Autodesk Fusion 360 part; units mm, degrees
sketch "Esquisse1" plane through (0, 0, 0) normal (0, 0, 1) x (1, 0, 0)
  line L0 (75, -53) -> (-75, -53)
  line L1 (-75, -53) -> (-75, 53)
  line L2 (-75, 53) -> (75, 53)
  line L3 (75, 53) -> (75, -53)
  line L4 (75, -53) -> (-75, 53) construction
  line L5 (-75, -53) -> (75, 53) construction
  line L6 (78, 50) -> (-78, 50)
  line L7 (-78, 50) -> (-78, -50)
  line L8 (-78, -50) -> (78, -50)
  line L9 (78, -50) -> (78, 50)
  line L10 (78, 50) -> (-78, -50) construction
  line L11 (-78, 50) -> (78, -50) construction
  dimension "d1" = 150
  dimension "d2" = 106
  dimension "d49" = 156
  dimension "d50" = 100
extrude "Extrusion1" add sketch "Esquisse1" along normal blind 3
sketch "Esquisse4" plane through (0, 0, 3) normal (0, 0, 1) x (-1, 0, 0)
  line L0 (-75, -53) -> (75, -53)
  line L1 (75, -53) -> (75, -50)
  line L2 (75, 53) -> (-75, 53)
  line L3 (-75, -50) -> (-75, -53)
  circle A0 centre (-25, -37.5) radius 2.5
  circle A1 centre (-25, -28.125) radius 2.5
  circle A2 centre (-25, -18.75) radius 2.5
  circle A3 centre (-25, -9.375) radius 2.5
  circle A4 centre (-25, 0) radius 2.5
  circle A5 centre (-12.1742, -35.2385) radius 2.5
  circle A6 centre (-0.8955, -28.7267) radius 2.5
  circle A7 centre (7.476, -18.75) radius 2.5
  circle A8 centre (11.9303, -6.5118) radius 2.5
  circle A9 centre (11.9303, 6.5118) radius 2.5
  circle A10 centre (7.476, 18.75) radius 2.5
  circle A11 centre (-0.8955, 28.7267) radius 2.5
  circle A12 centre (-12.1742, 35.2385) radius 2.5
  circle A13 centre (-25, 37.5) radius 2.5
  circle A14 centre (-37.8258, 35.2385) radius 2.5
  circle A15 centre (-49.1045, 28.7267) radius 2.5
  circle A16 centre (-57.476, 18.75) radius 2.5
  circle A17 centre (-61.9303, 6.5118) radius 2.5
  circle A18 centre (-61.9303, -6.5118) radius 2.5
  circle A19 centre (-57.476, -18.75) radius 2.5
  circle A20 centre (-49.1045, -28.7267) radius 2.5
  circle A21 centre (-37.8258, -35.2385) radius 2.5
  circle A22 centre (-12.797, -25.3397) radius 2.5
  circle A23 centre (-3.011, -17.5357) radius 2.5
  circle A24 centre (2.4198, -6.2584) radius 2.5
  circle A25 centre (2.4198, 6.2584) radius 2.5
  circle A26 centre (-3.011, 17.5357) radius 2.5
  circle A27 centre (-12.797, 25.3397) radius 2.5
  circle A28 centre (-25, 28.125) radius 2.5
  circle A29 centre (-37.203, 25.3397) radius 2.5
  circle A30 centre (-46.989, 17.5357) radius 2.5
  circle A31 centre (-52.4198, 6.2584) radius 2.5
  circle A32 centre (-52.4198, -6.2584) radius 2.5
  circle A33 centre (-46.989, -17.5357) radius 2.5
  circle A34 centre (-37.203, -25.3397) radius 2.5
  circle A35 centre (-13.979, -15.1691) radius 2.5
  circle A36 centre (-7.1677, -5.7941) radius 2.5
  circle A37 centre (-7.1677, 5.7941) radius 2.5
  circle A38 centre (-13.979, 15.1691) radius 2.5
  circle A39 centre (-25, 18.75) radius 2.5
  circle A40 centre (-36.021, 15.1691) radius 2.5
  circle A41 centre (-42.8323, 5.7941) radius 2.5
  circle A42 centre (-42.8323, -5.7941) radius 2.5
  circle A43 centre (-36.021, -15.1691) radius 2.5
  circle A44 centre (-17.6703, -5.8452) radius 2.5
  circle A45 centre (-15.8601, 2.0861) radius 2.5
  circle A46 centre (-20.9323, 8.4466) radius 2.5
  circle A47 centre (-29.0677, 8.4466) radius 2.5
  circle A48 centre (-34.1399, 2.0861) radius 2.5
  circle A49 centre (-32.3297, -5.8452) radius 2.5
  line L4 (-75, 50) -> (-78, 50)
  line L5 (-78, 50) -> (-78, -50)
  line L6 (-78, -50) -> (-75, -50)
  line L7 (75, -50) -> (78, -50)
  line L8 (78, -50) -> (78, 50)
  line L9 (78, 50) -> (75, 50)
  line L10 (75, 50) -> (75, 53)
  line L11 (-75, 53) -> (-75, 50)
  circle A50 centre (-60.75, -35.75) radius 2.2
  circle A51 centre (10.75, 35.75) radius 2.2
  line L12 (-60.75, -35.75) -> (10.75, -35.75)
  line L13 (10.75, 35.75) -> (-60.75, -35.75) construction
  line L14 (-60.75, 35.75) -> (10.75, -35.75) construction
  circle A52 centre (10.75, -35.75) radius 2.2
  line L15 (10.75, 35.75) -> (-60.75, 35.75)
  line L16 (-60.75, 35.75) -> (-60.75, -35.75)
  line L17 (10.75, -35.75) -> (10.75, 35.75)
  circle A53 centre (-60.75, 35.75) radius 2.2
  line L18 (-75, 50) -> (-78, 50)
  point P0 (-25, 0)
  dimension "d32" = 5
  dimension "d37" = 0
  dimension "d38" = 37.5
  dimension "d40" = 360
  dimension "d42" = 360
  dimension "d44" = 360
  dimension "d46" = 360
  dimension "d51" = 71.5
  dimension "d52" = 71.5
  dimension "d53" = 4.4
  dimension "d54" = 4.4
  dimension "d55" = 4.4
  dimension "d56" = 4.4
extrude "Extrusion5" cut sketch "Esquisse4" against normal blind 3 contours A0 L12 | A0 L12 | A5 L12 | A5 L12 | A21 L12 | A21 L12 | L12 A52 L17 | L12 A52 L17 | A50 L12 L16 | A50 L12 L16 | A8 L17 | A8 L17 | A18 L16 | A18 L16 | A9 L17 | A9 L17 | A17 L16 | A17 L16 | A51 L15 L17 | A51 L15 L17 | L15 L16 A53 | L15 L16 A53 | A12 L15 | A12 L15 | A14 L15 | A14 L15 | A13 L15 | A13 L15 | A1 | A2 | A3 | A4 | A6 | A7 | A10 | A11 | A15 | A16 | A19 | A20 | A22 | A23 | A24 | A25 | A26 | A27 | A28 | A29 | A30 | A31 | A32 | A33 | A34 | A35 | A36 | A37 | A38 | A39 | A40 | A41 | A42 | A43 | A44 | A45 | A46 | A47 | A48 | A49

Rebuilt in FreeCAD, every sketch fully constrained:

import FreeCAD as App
import Part
import Sketcher

doc = App.newDocument("Part")
params = doc.addObject("Spreadsheet::Sheet", "Params")
for row, (alias, value) in enumerate([
    ("sketch1_width", "150 mm"),
    ("sketch1_height", "100 mm"),
    ("pad1_length", "3 mm"),
    ("sketch2_diameter", "5 mm"),
    ("sketch2_diameter2", "4.4 mm"),
    ("pocket1_length", "3 mm"),
], start=1):
    params.set(f"A{row}", alias)
    params.set(f"B{row}", "=" + value)
    params.setAlias(f"B{row}", alias)

body = doc.addObject("PartDesign::Body", "Body")

sketch1 = body.newObject("Sketcher::SketchObject", "Sketch")
sketch1.AttachmentSupport = (doc.getObject("XY_Plane"), [""])
sketch1.MapMode = "FlatFace"
sketch1.addGeometry([
    Part.LineSegment(App.Vector(-75, -53, 0), App.Vector(75, -53, 0)),
    Part.LineSegment(App.Vector(75, -53, 0), App.Vector(75, -50, 0)),
    Part.LineSegment(App.Vector(75, -50, 0), App.Vector(78, -50, 0)),
    Part.LineSegment(App.Vector(78, -50, 0), App.Vector(78, 50, 0)),
    Part.LineSegment(App.Vector(78, 50, 0), App.Vector(75, 50, 0)),
    Part.LineSegment(App.Vector(75, 50, 0), App.Vector(75, 53, 0)),
    Part.LineSegment(App.Vector(75, 53, 0), App.Vector(-75, 53, 0)),
    Part.LineSegment(App.Vector(-75, 53, 0), App.Vector(-75, 50, 0)),
    Part.LineSegment(App.Vector(-75, 50, 0), App.Vector(-78, 50, 0)),
    Part.LineSegment(App.Vector(-78, 50, 0), App.Vector(-78, -50, 0)),
    Part.LineSegment(App.Vector(-78, -50, 0), App.Vector(-75, -50, 0)),
    Part.LineSegment(App.Vector(-75, -50, 0), App.Vector(-75, -53, 0)),
], False)
sketch1.addConstraint([
    Sketcher.Constraint("Coincident", 0, 2, 1, 1),
    Sketcher.Constraint("Coincident", 1, 2, 2, 1),
    Sketcher.Constraint("Coincident", 2, 2, 3, 1),
    Sketcher.Constraint("Coincident", 3, 2, 4, 1),
    Sketcher.Constraint("Coincident", 4, 2, 5, 1),
    Sketcher.Constraint("Coincident", 5, 2, 6, 1),
    Sketcher.Constraint("Coincident", 6, 2, 7, 1),
    Sketcher.Constraint("Coincident", 7, 2, 8, 1),
    Sketcher.Constraint("Coincident", 8, 2, 9, 1),
    Sketcher.Constraint("Coincident", 9, 2, 10, 1),
    Sketcher.Constraint("Coincident", 10, 2, 11, 1),
    Sketcher.Constraint("Coincident", 11, 2, 0, 1),
    Sketcher.Constraint("Horizontal", 0),
    Sketcher.Constraint("Vertical", 1),
    Sketcher.Constraint("Horizontal", 2),
    Sketcher.Constraint("Vertical", 3),
    Sketcher.Constraint("Horizontal", 4),
    Sketcher.Constraint("Vertical", 5),
    Sketcher.Constraint("Horizontal", 6),
    Sketcher.Constraint("Vertical", 7),
    Sketcher.Constraint("Horizontal", 8),
    Sketcher.Constraint("Vertical", 9),
    Sketcher.Constraint("Horizontal", 10),
    Sketcher.Constraint("Vertical", 11),
    Sketcher.Constraint("Symmetric", 0, 2, 6, 2, -1, 1),
    Sketcher.Constraint("Symmetric", 2, 2, 8, 2, -1, 1),
    Sketcher.Constraint("Symmetric", 4, 2, 10, 2, -1, 1),
    Sketcher.Constraint("Symmetric", 4, 2, 7, 2, -2),
    Sketcher.Constraint("Equal", 10, 1),
    Sketcher.Constraint("DistanceX", 0, 1, 0, 2, 150.0),
    Sketcher.Constraint("DistanceY", 3, 1, 3, 2, 100.0),
    Sketcher.Constraint("DistanceY", 0, 2, 5, 2, 106.0),
])
sketch1.setExpression("Constraints[29]", "Params.sketch1_width")
sketch1.setExpression("Constraints[30]", "Params.sketch1_height")
pad1 = body.newObject("PartDesign::Pad", "Pad")
pad1.Profile = sketch1
pad1.setExpression("Length", "Params.pad1_length")

sketch2 = body.newObject("Sketcher::SketchObject", "Sketch001")
sketch2.AttachmentSupport = (doc.getObject("XY_Plane"), [""])
sketch2.MapMode = "FlatFace"
sketch2.AttachmentOffset = App.Placement(App.Vector(0, 0, 3), App.Rotation())
sketch2.addGeometry([
    Part.Circle(App.Vector(25, 37.5, 0), App.Vector(0, 0, 1), 2.5),
    Part.Circle(App.Vector(12.1742, 35.2385, 0), App.Vector(0, 0, 1), 2.5),
    Part.Circle(App.Vector(37.8258, 35.2385, 0), App.Vector(0, 0, 1), 2.5),
    Part.Circle(App.Vector(-10.75, 35.75, 0), App.Vector(0, 0, 1), 2.2),
    Part.Circle(App.Vector(60.75, 35.75, 0), App.Vector(0, 0, 1), 2.2),
    Part.Circle(App.Vector(-11.9303, 6.5118, 0), App.Vector(0, 0, 1), 2.5),
    Part.Circle(App.Vector(61.9303, 6.5118, 0), App.Vector(0, 0, 1), 2.5),
    Part.Circle(App.Vector(-11.9303, -6.5118, 0), App.Vector(0, 0, 1), 2.5),
    Part.Circle(App.Vector(61.9303, -6.5118, 0), App.Vector(0, 0, 1), 2.5),
    Part.Circle(App.Vector(-10.75, -35.75, 0), App.Vector(0, 0, 1), 2.2),
    Part.Circle(App.Vector(60.75, -35.75, 0), App.Vector(0, 0, 1), 2.2),
    Part.Circle(App.Vector(12.1742, -35.2385, 0), App.Vector(0, 0, 1), 2.5),
    Part.Circle(App.Vector(37.8258, -35.2385, 0), App.Vector(0, 0, 1), 2.5),
    Part.Circle(App.Vector(25, -37.5, 0), App.Vector(0, 0, 1), 2.5),
    Part.Circle(App.Vector(25, 28.125, 0), App.Vector(0, 0, 1), 2.5),
    Part.Circle(App.Vector(25, 18.75, 0), App.Vector(0, 0, 1), 2.5),
    Part.Circle(App.Vector(25, 9.375, 0), App.Vector(0, 0, 1), 2.5),
    Part.Circle(App.Vector(25, 0, 0), App.Vector(0, 0, 1), 2.5),
    Part.Circle(App.Vector(0.8955, 28.7267, 0), App.Vector(0, 0, 1), 2.5),
    Part.Circle(App.Vector(-7.476, 18.75, 0), App.Vector(0, 0, 1), 2.5),
    Part.Circle(App.Vector(-7.476, -18.75, 0), App.Vector(0, 0, 1), 2.5),
    Part.Circle(App.Vector(0.8955, -28.7267, 0), App.Vector(0, 0, 1), 2.5),
    Part.Circle(App.Vector(49.1045, -28.7267, 0), App.Vector(0, 0, 1), 2.5),
    Part.Circle(App.Vector(57.476, -18.75, 0), App.Vector(0, 0, 1), 2.5),
    Part.Circle(App.Vector(57.476, 18.75, 0), App.Vector(0, 0, 1), 2.5),
    Part.Circle(App.Vector(49.1045, 28.7267, 0), App.Vector(0, 0, 1), 2.5),
    Part.Circle(App.Vector(12.797, 25.3397, 0), App.Vector(0, 0, 1), 2.5),
    Part.Circle(App.Vector(3.011, 17.5357, 0), App.Vector(0, 0, 1), 2.5),
    Part.Circle(App.Vector(-2.4198, 6.2584, 0), App.Vector(0, 0, 1), 2.5),
    Part.Circle(App.Vector(-2.4198, -6.2584, 0), App.Vector(0, 0, 1), 2.5),
    Part.Circle(App.Vector(3.011, -17.5357, 0), App.Vector(0, 0, 1), 2.5),
    Part.Circle(App.Vector(12.797, -25.3397, 0), App.Vector(0, 0, 1), 2.5),
    Part.Circle(App.Vector(25, -28.125, 0), App.Vector(0, 0, 1), 2.5),
    Part.Circle(App.Vector(37.203, -25.3397, 0), App.Vector(0, 0, 1), 2.5),
    Part.Circle(App.Vector(46.989, -17.5357, 0), App.Vector(0, 0, 1), 2.5),
    Part.Circle(App.Vector(52.4198, -6.2584, 0), App.Vector(0, 0, 1), 2.5),
    Part.Circle(App.Vector(52.4198, 6.2584, 0), App.Vector(0, 0, 1), 2.5),
    Part.Circle(App.Vector(46.989, 17.5357, 0), App.Vector(0, 0, 1), 2.5),
    Part.Circle(App.Vector(37.203, 25.3397, 0), App.Vector(0, 0, 1), 2.5),
    Part.Circle(App.Vector(13.979, 15.1691, 0), App.Vector(0, 0, 1), 2.5),
    Part.Circle(App.Vector(7.1677, 5.7941, 0), App.Vector(0, 0, 1), 2.5),
    Part.Circle(App.Vector(7.1677, -5.7941, 0), App.Vector(0, 0, 1), 2.5),
    Part.Circle(App.Vector(13.979, -15.1691, 0), App.Vector(0, 0, 1), 2.5),
    Part.Circle(App.Vector(25, -18.75, 0), App.Vector(0, 0, 1), 2.5),
    Part.Circle(App.Vector(36.021, -15.1691, 0), App.Vector(0, 0, 1), 2.5),
    Part.Circle(App.Vector(42.8323, -5.7941, 0), App.Vector(0, 0, 1), 2.5),
    Part.Circle(App.Vector(42.8323, 5.7941, 0), App.Vector(0, 0, 1), 2.5),
    Part.Circle(App.Vector(36.021, 15.1691, 0), App.Vector(0, 0, 1), 2.5),
    Part.Circle(App.Vector(17.6703, 5.8452, 0), App.Vector(0, 0, 1), 2.5),
    Part.Circle(App.Vector(15.8601, -2.0861, 0), App.Vector(0, 0, 1), 2.5),
    Part.Circle(App.Vector(20.9323, -8.4466, 0), App.Vector(0, 0, 1), 2.5),
    Part.Circle(App.Vector(29.0677, -8.4466, 0), App.Vector(0, 0, 1), 2.5),
    Part.Circle(App.Vector(34.1399, -2.0861, 0), App.Vector(0, 0, 1), 2.5),
    Part.Circle(App.Vector(32.3297, 5.8452, 0), App.Vector(0, 0, 1), 2.5),
], False)
sketch2.addConstraint([
    Sketcher.Constraint("Equal", 0, 1),
    Sketcher.Constraint("Equal", 1, 2),
    Sketcher.Constraint("Equal", 3, 4),
    Sketcher.Constraint("Equal", 2, 5),
    Sketcher.Constraint("Equal", 5, 6),
    Sketcher.Constraint("Equal", 6, 7),
    Sketcher.Constraint("Equal", 7, 8),
    Sketcher.Constraint("Equal", 4, 9),
    Sketcher.Constraint("Equal", 9, 10),
    Sketcher.Constraint("Equal", 8, 11),
    Sketcher.Constraint("Equal", 11, 12),
    Sketcher.Constraint("Equal", 12, 13),
    Sketcher.Constraint("Equal", 13, 14),
    Sketcher.Constraint("Equal", 14, 15),
    Sketcher.Constraint("Equal", 15, 16),
    Sketcher.Constraint("Equal", 16, 17),
    Sketcher.Constraint("Equal", 17, 18),
    Sketcher.Constraint("Equal", 18, 19),
    Sketcher.Constraint("Equal", 19, 20),
    Sketcher.Constraint("Equal", 20, 21),
    Sketcher.Constraint("Equal", 21, 22),
    Sketcher.Constraint("Equal", 22, 23),
    Sketcher.Constraint("Equal", 23, 24),
    Sketcher.Constraint("Equal", 24, 25),
    Sketcher.Constraint("Equal", 25, 26),
    Sketcher.Constraint("Equal", 26, 27),
    Sketcher.Constraint("Equal", 27, 28),
    Sketcher.Constraint("Equal", 28, 29),
    Sketcher.Constraint("Equal", 29, 30),
    Sketcher.Constraint("Equal", 30, 31),
    Sketcher.Constraint("Equal", 31, 32),
    Sketcher.Constraint("Equal", 32, 33),
    Sketcher.Constraint("Equal", 33, 34),
    Sketcher.Constraint("Equal", 34, 35),
    Sketcher.Constraint("Equal", 35, 36),
    Sketcher.Constraint("Equal", 36, 37),
    Sketcher.Constraint("Equal", 37, 38),
    Sketcher.Constraint("Equal", 38, 39),
    Sketcher.Constraint("Equal", 39, 40),
    Sketcher.Constraint("Equal", 40, 41),
    Sketcher.Constraint("Equal", 41, 42),
    Sketcher.Constraint("Equal", 42, 43),
    Sketcher.Constraint("Equal", 43, 44),
    Sketcher.Constraint("Equal", 44, 45),
    Sketcher.Constraint("Equal", 45, 46),
    Sketcher.Constraint("Equal", 46, 47),
    Sketcher.Constraint("Equal", 47, 48),
    Sketcher.Constraint("Equal", 48, 49),
    Sketcher.Constraint("Equal", 49, 50),
    Sketcher.Constraint("Equal", 50, 51),
    Sketcher.Constraint("Equal", 51, 52),
    Sketcher.Constraint("Equal", 52, 53),
    Sketcher.Constraint("Symmetric", 5, 3, 7, 3, -1),
    Sketcher.Constraint("Symmetric", 6, 3, 8, 3, -1),
    Sketcher.Constraint("Symmetric", 3, 3, 9, 3, -1),
    Sketcher.Constraint("Symmetric", 4, 3, 10, 3, -1),
    Sketcher.Constraint("Symmetric", 1, 3, 11, 3, -1),
    Sketcher.Constraint("Symmetric", 2, 3, 12, 3, -1),
    Sketcher.Constraint("Symmetric", 0, 3, 13, 3, -1),
    Sketcher.Constraint("Symmetric", 19, 3, 20, 3, -1),
    Sketcher.Constraint("Symmetric", 18, 3, 21, 3, -1),
    Sketcher.Constraint("Symmetric", 23, 3, 24, 3, -1),
    Sketcher.Constraint("Symmetric", 22, 3, 25, 3, -1),
    Sketcher.Constraint("Symmetric", 28, 3, 29, 3, -1),
    Sketcher.Constraint("Symmetric", 27, 3, 30, 3, -1),
    Sketcher.Constraint("Symmetric", 26, 3, 31, 3, -1),
    Sketcher.Constraint("Symmetric", 14, 3, 32, 3, -1),
    Sketcher.Constraint("Symmetric", 35, 3, 36, 3, -1),
    Sketcher.Constraint("Symmetric", 34, 3, 37, 3, -1),
    Sketcher.Constraint("Symmetric", 33, 3, 38, 3, -1),
    Sketcher.Constraint("Symmetric", 40, 3, 41, 3, -1),
    Sketcher.Constraint("Symmetric", 39, 3, 42, 3, -1),
    Sketcher.Constraint("Symmetric", 15, 3, 43, 3, -1),
    Sketcher.Constraint("Symmetric", 45, 3, 46, 3, -1),
    Sketcher.Constraint("Symmetric", 44, 3, 47, 3, -1),
    Sketcher.Constraint("PointOnObject", 17, 3, -1),
    Sketcher.Constraint("Horizontal", 1, 3, 2, 3),
    Sketcher.Constraint("Horizontal", 3, 3, 4, 3),
    Sketcher.Constraint("Horizontal", 5, 3, 6, 3),
    Sketcher.Constraint("Horizontal", 15, 3, 19, 3),
    Sketcher.Constraint("Horizontal", 21, 3, 22, 3),
    Sketcher.Constraint("Horizontal", 20, 3, 23, 3),
    Sketcher.Constraint("Horizontal", 31, 3, 33, 3),
    Sketcher.Constraint("Horizontal", 30, 3, 34, 3),
    Sketcher.Constraint("Horizontal", 29, 3, 35, 3),
    Sketcher.Constraint("Horizontal", 42, 3, 44, 3),
    Sketcher.Constraint("Horizontal", 41, 3, 45, 3),
    Sketcher.Constraint("Horizontal", 50, 3, 51, 3),
    Sketcher.Constraint("Horizontal", 49, 3, 52, 3),
    Sketcher.Constraint("Horizontal", 48, 3, 53, 3),
    Sketcher.Constraint("Vertical", 13, 3, 14, 3),
    Sketcher.Constraint("Vertical", 14, 3, 15, 3),
    Sketcher.Constraint("Vertical", 15, 3, 16, 3),
    Sketcher.Constraint("Vertical", 16, 3, 17, 3),
    Sketcher.Constraint("Diameter", 0, 5.0),
    Sketcher.Constraint("Diameter", 3, 4.4),
    Sketcher.Constraint("DistanceY", -1, 1, 0, 3, 37.5),
    Sketcher.Constraint("DistanceX", 3, 3, 4, 3, 71.5),
    Sketcher.Constraint("DistanceY", 9, 3, 3, 3, 71.5),
    Sketcher.Constraint("DistanceY", 20, 3, 19, 3, 37.5),
    Sketcher.Constraint("DistanceX", -1, 1, 0, 3, 25.0),
    Sketcher.Constraint("DistanceX", 3, 3, -1, 1, 10.75),
    Sketcher.Constraint("DistanceX", -1, 1, 49, 3, 15.86),
    Sketcher.Constraint("DistanceX", -1, 1, 52, 3, 34.14),
    Sketcher.Constraint("DistanceY", 16, 3, 14, 3, 18.75),
    Sketcher.Constraint("DistanceY", -1, 1, 14, 3, 28.125),
    Sketcher.Constraint("DistanceX", 19, 3, -1, 1, 7.476),
    Sketcher.Constraint("DistanceX", -1, 1, 23, 3, 57.476),
    Sketcher.Constraint("DistanceX", -1, 1, 26, 3, 12.797),
    Sketcher.Constraint("DistanceX", -1, 1, 27, 3, 3.011),
    Sketcher.Constraint("DistanceX", -1, 1, 33, 3, 37.203),
    Sketcher.Constraint("DistanceX", -1, 1, 34, 3, 46.989),
    Sketcher.Constraint("DistanceX", -1, 1, 39, 3, 13.979),
    Sketcher.Constraint("DistanceY", -1, 1, 39, 3, 15.169),
    Sketcher.Constraint("DistanceY", -1, 1, 40, 3, 5.794),
    Sketcher.Constraint("DistanceX", -1, 1, 44, 3, 36.021),
    Sketcher.Constraint("DistanceY", 49, 3, -1, 1, 2.086),
    Sketcher.Constraint("DistanceX", 5, 3, 2, 3, 49.756),
    Sketcher.Constraint("DistanceX", 1, 3, 6, 3, 49.756),
    Sketcher.Constraint("DistanceY", 5, 3, 18, 3, 22.215),
    Sketcher.Constraint("DistanceY", 26, 3, 18, 3, 3.387),
    Sketcher.Constraint("DistanceY", 27, 3, 18, 3, 11.191),
    Sketcher.Constraint("DistanceY", 48, 3, 39, 3, 9.324),
    Sketcher.Constraint("DistanceX", -1, 1, 1, 3, 12.1742),
    Sketcher.Constraint("DistanceY", -1, 1, 1, 3, 35.2385),
    Sketcher.Constraint("DistanceX", -1, 1, 2, 3, 37.8258),
    Sketcher.Constraint("DistanceY", -1, 1, 5, 3, 6.5118),
    Sketcher.Constraint("DistanceX", -1, 1, 18, 3, 0.8955),
    Sketcher.Constraint("DistanceX", -1, 1, 22, 3, 49.1045),
    Sketcher.Constraint("DistanceX", 28, 3, -1, 1, 2.4198),
    Sketcher.Constraint("DistanceY", -1, 1, 28, 3, 6.2584),
    Sketcher.Constraint("DistanceX", -1, 1, 35, 3, 52.4198),
    Sketcher.Constraint("DistanceX", -1, 1, 40, 3, 7.1677),
    Sketcher.Constraint("DistanceX", -1, 1, 45, 3, 42.8323),
    Sketcher.Constraint("DistanceX", -1, 1, 48, 3, 17.6703),
    Sketcher.Constraint("DistanceX", -1, 1, 50, 3, 20.9323),
    Sketcher.Constraint("DistanceY", 50, 3, -1, 1, 8.4466),
    Sketcher.Constraint("DistanceX", -1, 1, 51, 3, 29.0677),
    Sketcher.Constraint("DistanceX", -1, 1, 53, 3, 32.3297),
])
sketch2.setExpression("Constraints[94]", "Params.sketch2_diameter")
sketch2.setExpression("Constraints[95]", "Params.sketch2_diameter2")
pocket1 = body.newObject("PartDesign::Pocket", "Pocket")
pocket1.Profile = sketch2
pocket1.setExpression("Length", "Params.pocket1_length")

doc.recompute()
